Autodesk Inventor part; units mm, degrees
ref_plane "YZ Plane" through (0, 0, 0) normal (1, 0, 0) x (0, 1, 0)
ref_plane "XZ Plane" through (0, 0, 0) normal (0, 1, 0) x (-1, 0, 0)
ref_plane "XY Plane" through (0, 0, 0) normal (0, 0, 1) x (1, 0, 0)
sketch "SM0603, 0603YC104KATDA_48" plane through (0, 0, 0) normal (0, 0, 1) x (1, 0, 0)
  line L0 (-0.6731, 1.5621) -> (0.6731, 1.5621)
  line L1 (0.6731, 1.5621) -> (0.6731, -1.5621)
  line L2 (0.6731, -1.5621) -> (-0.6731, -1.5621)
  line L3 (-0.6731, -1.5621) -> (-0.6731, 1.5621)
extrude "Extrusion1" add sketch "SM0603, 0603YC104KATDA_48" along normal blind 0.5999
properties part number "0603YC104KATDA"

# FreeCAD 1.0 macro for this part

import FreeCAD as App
import Part
import Sketcher
from FreeCAD import Vector
Q = App.Units.Quantity


def add_polygon(sketch, points):
    """Adds a closed chain of lines whose ends are joined by coincident constraints."""
    first, n = sketch.GeometryCount, len(points)
    for a, b in zip(points, points[1:] + points[:1]):
        sketch.addGeometry(Part.LineSegment(App.Vector(*a, 0), App.Vector(*b, 0)), False)
    for i in range(n):
        sketch.addConstraint(Sketcher.Constraint("Coincident", first + i, 2, first + (i + 1) % n, 1))

doc = App.newDocument("Part")
body = doc.addObject("PartDesign::Body", "Body")

sketch1 = body.newObject("Sketcher::SketchObject", "Sketch")
sketch1.AttachmentSupport = (doc.getObject("XY_Plane"), [""])
sketch1.MapMode = "FlatFace"
add_polygon(sketch1, [(0.7, 1.6), (-0.7, 1.6), (-0.7, -1.6), (0.7, -1.6)])
sketch1.addConstraint([
    Sketcher.Constraint("Horizontal", 0),
    Sketcher.Constraint("Vertical", 1),
    Sketcher.Constraint("Horizontal", 2),
    Sketcher.Constraint("Vertical", 3),
    Sketcher.Constraint("Symmetric", 0, 2, 2, 2, -1, 1),
    Sketcher.Constraint("DistanceX", 0, 2, 0, 1, Q("0.053 in")),
    Sketcher.Constraint("DistanceY", 1, 2, 1, 1, Q("0.123 in")),
])
pad1 = body.newObject("PartDesign::Pad", "Pad")
pad1.Profile = sketch1
pad1.Length = 0.5999

doc.recompute()
